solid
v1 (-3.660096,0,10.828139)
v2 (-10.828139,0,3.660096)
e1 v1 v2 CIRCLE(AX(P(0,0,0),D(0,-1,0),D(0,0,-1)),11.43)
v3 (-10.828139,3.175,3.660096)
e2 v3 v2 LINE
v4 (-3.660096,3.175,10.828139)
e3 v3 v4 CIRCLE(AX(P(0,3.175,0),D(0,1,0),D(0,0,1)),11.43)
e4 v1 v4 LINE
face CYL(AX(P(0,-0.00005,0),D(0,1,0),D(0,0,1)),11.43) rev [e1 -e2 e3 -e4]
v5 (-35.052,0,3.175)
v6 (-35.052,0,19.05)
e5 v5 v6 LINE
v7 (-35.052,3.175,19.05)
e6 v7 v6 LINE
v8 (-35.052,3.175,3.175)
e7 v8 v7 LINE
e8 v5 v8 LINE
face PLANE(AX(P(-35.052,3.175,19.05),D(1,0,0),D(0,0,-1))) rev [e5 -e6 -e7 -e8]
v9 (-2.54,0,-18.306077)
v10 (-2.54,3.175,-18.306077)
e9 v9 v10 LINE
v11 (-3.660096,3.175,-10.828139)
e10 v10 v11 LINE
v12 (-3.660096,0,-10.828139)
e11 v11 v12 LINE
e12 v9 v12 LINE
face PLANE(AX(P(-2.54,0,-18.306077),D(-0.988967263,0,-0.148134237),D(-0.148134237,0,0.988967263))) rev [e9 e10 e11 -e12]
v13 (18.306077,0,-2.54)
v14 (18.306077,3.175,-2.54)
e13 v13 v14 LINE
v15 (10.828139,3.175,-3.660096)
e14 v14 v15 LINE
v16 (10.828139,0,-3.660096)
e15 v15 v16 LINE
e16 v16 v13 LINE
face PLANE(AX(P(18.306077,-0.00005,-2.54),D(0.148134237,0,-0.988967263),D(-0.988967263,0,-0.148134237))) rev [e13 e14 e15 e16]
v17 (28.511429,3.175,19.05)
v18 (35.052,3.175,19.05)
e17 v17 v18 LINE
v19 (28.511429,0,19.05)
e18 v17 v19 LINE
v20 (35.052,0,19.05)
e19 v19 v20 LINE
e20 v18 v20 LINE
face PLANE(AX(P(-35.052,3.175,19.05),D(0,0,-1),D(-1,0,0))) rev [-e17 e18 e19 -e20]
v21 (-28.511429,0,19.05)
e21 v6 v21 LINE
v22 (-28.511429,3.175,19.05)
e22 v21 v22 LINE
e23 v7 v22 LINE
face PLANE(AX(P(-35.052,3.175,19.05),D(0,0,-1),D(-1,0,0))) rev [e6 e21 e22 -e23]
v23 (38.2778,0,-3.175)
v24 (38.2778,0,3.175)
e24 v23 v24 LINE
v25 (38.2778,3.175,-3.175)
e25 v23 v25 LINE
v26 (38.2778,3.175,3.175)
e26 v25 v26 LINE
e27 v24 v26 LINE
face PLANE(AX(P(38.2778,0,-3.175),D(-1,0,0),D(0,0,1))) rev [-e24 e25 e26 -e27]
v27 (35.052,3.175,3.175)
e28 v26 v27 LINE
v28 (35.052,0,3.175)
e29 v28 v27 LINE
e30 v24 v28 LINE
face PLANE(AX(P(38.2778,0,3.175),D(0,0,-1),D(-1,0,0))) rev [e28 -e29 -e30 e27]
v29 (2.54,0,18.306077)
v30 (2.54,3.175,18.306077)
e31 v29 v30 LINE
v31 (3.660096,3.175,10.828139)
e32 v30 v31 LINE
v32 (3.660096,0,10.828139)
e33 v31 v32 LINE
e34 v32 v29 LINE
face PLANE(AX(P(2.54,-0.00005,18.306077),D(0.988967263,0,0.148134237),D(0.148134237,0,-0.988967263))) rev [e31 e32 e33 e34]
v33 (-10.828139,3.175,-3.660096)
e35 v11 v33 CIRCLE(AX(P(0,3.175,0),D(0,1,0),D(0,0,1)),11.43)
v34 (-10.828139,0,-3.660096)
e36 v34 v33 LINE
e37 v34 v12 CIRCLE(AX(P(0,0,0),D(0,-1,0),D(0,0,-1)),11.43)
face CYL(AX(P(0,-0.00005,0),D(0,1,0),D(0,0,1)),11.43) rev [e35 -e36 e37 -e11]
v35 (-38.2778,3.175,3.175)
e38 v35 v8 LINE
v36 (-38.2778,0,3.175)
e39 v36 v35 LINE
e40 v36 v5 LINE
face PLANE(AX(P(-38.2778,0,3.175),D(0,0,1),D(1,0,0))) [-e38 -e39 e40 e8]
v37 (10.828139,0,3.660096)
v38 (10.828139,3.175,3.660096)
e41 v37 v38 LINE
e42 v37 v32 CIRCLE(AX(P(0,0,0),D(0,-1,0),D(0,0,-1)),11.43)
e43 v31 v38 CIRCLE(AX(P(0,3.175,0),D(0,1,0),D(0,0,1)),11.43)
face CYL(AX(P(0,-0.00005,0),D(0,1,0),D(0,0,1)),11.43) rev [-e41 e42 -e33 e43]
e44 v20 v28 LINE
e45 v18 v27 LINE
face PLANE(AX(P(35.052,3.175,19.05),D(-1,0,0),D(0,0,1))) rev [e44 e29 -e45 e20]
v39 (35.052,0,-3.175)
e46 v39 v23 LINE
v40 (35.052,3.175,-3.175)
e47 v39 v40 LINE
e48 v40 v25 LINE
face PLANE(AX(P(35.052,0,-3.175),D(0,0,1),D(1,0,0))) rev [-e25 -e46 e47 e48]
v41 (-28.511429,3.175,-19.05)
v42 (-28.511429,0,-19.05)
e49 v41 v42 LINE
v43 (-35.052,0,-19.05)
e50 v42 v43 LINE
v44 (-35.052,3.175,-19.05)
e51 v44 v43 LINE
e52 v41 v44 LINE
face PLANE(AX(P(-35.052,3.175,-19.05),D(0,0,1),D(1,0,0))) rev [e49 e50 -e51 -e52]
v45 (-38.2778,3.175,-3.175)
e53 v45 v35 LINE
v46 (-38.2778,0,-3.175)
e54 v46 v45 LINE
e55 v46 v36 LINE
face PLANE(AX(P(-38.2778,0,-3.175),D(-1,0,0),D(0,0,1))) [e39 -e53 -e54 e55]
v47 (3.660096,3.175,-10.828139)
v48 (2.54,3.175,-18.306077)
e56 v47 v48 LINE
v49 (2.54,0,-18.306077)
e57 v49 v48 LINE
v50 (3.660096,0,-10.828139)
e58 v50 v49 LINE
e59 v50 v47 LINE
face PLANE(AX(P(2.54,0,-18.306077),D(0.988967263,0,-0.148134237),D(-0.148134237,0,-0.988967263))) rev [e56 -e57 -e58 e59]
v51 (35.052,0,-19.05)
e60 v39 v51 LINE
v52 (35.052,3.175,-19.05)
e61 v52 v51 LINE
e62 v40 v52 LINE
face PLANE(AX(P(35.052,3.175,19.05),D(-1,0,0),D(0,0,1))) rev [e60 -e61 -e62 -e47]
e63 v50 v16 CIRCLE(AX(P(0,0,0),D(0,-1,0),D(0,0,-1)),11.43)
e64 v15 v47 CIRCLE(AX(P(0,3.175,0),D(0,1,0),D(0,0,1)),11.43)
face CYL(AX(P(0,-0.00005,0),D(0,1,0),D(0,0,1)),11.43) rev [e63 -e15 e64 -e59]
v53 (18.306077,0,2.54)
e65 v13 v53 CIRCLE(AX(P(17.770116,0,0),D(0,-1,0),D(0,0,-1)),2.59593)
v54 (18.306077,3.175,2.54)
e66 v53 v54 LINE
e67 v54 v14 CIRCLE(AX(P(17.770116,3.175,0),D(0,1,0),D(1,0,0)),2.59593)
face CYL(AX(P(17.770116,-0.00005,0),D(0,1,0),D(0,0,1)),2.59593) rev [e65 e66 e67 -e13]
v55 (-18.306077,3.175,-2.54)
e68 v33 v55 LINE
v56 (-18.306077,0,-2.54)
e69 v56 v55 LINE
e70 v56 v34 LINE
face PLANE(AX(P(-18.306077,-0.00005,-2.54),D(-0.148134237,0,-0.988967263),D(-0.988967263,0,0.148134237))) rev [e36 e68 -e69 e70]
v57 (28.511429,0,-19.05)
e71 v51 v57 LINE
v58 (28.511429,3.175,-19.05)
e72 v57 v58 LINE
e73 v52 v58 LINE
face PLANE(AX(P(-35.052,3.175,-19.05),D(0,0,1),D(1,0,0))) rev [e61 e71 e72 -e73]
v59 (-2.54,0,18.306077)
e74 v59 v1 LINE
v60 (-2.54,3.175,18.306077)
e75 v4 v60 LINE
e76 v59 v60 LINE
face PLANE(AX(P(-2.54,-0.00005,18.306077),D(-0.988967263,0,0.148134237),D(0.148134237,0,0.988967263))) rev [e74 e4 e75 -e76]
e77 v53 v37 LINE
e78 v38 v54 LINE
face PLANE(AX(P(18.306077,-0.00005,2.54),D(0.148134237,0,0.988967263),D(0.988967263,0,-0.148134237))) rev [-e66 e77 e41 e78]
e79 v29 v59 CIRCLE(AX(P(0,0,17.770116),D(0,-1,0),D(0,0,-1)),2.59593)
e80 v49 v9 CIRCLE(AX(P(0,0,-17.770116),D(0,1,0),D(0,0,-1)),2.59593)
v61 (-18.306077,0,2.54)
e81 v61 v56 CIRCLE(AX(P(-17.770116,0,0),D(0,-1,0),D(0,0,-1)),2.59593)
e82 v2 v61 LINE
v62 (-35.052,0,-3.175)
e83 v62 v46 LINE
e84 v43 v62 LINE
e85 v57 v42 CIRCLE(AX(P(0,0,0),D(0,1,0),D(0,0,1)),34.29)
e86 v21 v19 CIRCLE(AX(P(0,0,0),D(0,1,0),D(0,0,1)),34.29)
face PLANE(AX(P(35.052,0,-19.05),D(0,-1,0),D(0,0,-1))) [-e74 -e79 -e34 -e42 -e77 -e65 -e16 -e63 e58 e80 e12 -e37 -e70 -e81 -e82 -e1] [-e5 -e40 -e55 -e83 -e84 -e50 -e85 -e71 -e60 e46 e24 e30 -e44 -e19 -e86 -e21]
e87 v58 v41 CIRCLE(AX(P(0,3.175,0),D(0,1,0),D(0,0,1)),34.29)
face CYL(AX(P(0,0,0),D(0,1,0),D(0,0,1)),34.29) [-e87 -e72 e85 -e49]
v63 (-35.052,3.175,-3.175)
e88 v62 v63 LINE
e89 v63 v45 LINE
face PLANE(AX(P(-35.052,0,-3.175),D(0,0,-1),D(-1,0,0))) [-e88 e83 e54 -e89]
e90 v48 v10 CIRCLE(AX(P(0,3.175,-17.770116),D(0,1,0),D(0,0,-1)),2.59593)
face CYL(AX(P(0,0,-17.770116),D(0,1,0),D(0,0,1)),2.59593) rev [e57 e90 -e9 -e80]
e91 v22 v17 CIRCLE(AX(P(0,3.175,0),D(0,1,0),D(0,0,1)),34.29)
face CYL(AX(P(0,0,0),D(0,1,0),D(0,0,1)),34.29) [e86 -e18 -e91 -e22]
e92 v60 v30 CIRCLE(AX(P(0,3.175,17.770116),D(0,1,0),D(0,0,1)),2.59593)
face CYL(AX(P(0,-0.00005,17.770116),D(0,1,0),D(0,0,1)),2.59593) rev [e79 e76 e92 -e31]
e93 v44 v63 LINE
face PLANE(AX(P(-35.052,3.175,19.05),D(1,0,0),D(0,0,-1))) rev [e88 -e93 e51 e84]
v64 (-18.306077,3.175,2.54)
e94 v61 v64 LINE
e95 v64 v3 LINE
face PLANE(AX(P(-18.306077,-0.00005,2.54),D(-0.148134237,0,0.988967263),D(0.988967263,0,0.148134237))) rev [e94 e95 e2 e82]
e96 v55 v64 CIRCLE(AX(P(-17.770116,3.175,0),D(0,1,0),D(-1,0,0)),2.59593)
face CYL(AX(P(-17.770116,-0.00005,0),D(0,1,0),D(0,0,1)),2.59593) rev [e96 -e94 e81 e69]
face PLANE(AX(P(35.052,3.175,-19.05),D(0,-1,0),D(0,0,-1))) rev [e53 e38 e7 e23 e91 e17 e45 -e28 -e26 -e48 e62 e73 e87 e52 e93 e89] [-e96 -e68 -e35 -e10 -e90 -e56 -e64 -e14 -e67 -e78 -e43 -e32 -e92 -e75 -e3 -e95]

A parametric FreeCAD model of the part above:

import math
import FreeCAD as App
import Part
import Sketcher
Q = App.Units.Quantity

doc = App.newDocument("Part")
body = doc.addObject("PartDesign::Body", "Body")

# Sketch on XZ plane
sketch1 = body.newObject("Sketcher::SketchObject", "Sketch")
sketch1.AttachmentSupport = (doc.getObject("XZ_Plane"), [""])
sketch1.MapMode = "FlatFace"
sketch1.addGeometry([
    Part.LineSegment(App.Vector(-35, -19, 0), App.Vector(-35, 19, 0)),
    Part.LineSegment(App.Vector(-35, 19, 0), App.Vector(35, 19, 0)),
    Part.LineSegment(App.Vector(35, 19, 0), App.Vector(35, -19, 0)),
    Part.LineSegment(App.Vector(35, -19, 0), App.Vector(-35, -19, 0)),
], False)
sketch1.addConstraint([
    Sketcher.Constraint("Coincident", 0, 2, 1, 1),
    Sketcher.Constraint("Coincident", 1, 2, 2, 1),
    Sketcher.Constraint("Coincident", 2, 2, 3, 1),
    Sketcher.Constraint("Coincident", 3, 2, 0, 1),
    Sketcher.Constraint("Vertical", 0),
    Sketcher.Constraint("Horizontal", 1),
    Sketcher.Constraint("Vertical", 2),
    Sketcher.Constraint("Horizontal", 3),
    Sketcher.Constraint("Symmetric", 0, 2, 2, 2, -1, 1),
    Sketcher.Constraint("DistanceY", 0, 1, 0, 2, Q("1.5 in")),
    Sketcher.Constraint("DistanceX", 1, 1, 1, 2, Q("2.76 in")),
])
pad1 = body.newObject("PartDesign::Pad", "Pad")
pad1.Profile = sketch1
pad1.Length = Q("0.125 in")
pad1.Reversed = True

# Sketch on XZ plane
sketch2 = body.newObject("Sketcher::SketchObject", "Sketch001")
sketch2.AttachmentSupport = (doc.getObject("XZ_Plane"), [""])
sketch2.MapMode = "FlatFace"
sketch2.AttachmentOffset = App.Placement(App.Vector(0, 0, -0.125 * 25.4), App.Rotation())
sketch2.addGeometry(Part.Circle(App.Vector(0, 0, 0), App.Vector(0, 0, 1), 34), False)
sketch2.addConstraint([
    Sketcher.Constraint("Coincident", 0, 3, -1, 1),
    Sketcher.Constraint("Diameter", 0, Q("2.7 in")),
])
pad2 = body.newObject("PartDesign::Pad", "Pad001")
pad2.Profile = sketch2
pad2.Length = Q("0.125 in")

# Sketch on XZ plane
sketch3 = body.newObject("Sketcher::SketchObject", "Sketch002")
sketch3.AttachmentSupport = (doc.getObject("XZ_Plane"), [""])
sketch3.MapMode = "FlatFace"
sketch3.AttachmentOffset = App.Placement(App.Vector(0, 0, -0.125 * 25.4), App.Rotation())
sketch3.addGeometry([
    Part.LineSegment(App.Vector(-2.5, -18.3, 0), App.Vector(-4.4, -5.6, 0)),  # 0
    Part.LineSegment(App.Vector(-4.4, -5.6, 0), App.Vector(-5.9, -4.2, 0)),  # 1
    Part.LineSegment(App.Vector(-5.9, -4.2, 0), App.Vector(0, 0, 0)),  # 2
    Part.LineSegment(App.Vector(0, 0, 0), App.Vector(5.9, -4.2, 0)),  # 3
    Part.LineSegment(App.Vector(5.9, -4.2, 0), App.Vector(4.4, -5.6, 0)),  # 4
    Part.LineSegment(App.Vector(4.4, -5.6, 0), App.Vector(2.5, -18.3, 0)),  # 5
    Part.ArcOfCircle(Part.Circle(App.Vector(0, -17.8, 0), App.Vector(0, 0, 1), 2.6), math.radians(-168), math.radians(-12)),  # 6
], False)
sketch3.addConstraint([
    Sketcher.Constraint("Coincident", 0, 2, 1, 1),
    Sketcher.Constraint("Coincident", 1, 2, 2, 1),
    Sketcher.Constraint("Coincident", 2, 2, 3, 1),
    Sketcher.Constraint("Coincident", 3, 2, 4, 1),
    Sketcher.Constraint("Coincident", 4, 2, 5, 1),
    Sketcher.Constraint("Coincident", 5, 2, 6, 2),
    Sketcher.Constraint("Coincident", 6, 1, 0, 1),
    Sketcher.Constraint("Coincident", 2, 2, -1, 1),
    Sketcher.Constraint("Symmetric", 1, 2, 3, 2, -2),
    Sketcher.Constraint("Symmetric", 0, 2, 4, 2, -2),
    Sketcher.Constraint("Symmetric", 5, 2, 6, 1, -2),
    Sketcher.Constraint("Perpendicular", 1, 4),
    Sketcher.Constraint("DistanceX", -1, 1, 5, 2, Q("0.1 in")),
    Sketcher.Constraint("Distance", 1, Q("0.08 in")),
    Sketcher.Constraint("DistanceY", 0, 2, -1, 1, Q("0.22 in")),
    Sketcher.Constraint("DistanceX", 0, 2, 4, 2, Q("0.35 in")),
    Sketcher.Constraint("Radius", 6, Q("2.59593 mm")),
    Sketcher.Constraint("Distance", 0, Q("12.859958 mm")),
])
pocket1 = body.newObject("PartDesign::Pocket", "Pocket")
pocket1.Profile = sketch3
pocket1.Type = "ThroughAll"
pocket1.Reversed = True

# Sketch on XZ plane
sketch4 = body.newObject("Sketcher::SketchObject", "Sketch003")
sketch4.AttachmentSupport = (doc.getObject("XZ_Plane"), [""])
sketch4.MapMode = "FlatFace"
sketch4.AttachmentOffset = App.Placement(App.Vector(0, 0, -0.125 * 25.4), App.Rotation())
sketch4.addGeometry([
    Part.LineSegment(App.Vector(-35.1, -3.2, 0), App.Vector(-38.3, -3.2, 0)),
    Part.LineSegment(App.Vector(-38.3, -3.2, 0), App.Vector(-38.3, 3.2, 0)),
    Part.LineSegment(App.Vector(-38.3, 3.2, 0), App.Vector(-35.1, 3.2, 0)),
    Part.LineSegment(App.Vector(-35.1, 3.2, 0), App.Vector(-35.1, -3.2, 0)),
], False)
sketch4.addConstraint([
    Sketcher.Constraint("Coincident", 0, 2, 1, 1),
    Sketcher.Constraint("Coincident", 1, 2, 2, 1),
    Sketcher.Constraint("Coincident", 2, 2, 3, 1),
    Sketcher.Constraint("Coincident", 3, 2, 0, 1),
    Sketcher.Constraint("Horizontal", 0),
    Sketcher.Constraint("Vertical", 1),
    Sketcher.Constraint("Horizontal", 2),
    Sketcher.Constraint("Vertical", 3),
    Sketcher.Constraint("DistanceY", 1, 1, 1, 2, Q("0.25 in")),
    Sketcher.Constraint("DistanceX", 0, 2, 0, 1, Q("0.127 in")),
    Sketcher.Constraint("DistanceX", 2, 2, -1, 1, Q("1.38 in")),
    Sketcher.Constraint("DistanceY", 0, 2, -1, 1, Q("0.125 in")),
])
pad3 = body.newObject("PartDesign::Pad", "Pad002")
pad3.Profile = sketch4
pad3.Length = Q("0.125 in")
doc.recompute()

mirrored = body.newObject("PartDesign::Mirrored", "Mirrored")
mirrored.Originals = [pad3]
mirrored.MirrorPlane = (doc.getObject("YZ_Plane"), [""])
body.Tip = mirrored
doc.recompute()

polarpattern = body.newObject("PartDesign::PolarPattern", "PolarPattern")
polarpattern.Originals = [pocket1]
polarpattern.Axis = (doc.getObject("Y_Axis"), [""])
polarpattern.Angle = 360
polarpattern.Occurrences = 4
body.Tip = polarpattern

# Sketch on XZ plane
sketch5 = body.newObject("Sketcher::SketchObject", "Sketch004")
sketch5.AttachmentSupport = (doc.getObject("XZ_Plane"), [""])
sketch5.MapMode = "FlatFace"
sketch5.AttachmentOffset = App.Placement(App.Vector(0, 0, -0.125 * 25.4), App.Rotation())
sketch5.addGeometry(Part.Circle(App.Vector(0, 0, 0), App.Vector(0, 0, 1), 11), False)
sketch5.addConstraint([
    Sketcher.Constraint("Coincident", 0, 3, -1, 1),
    Sketcher.Constraint("Diameter", 0, Q("0.9 in")),
])
pocket2 = body.newObject("PartDesign::Pocket", "Pocket001")
pocket2.Profile = sketch5
pocket2.Type = "ThroughAll"
pocket2.Reversed = True

doc.recompute()
